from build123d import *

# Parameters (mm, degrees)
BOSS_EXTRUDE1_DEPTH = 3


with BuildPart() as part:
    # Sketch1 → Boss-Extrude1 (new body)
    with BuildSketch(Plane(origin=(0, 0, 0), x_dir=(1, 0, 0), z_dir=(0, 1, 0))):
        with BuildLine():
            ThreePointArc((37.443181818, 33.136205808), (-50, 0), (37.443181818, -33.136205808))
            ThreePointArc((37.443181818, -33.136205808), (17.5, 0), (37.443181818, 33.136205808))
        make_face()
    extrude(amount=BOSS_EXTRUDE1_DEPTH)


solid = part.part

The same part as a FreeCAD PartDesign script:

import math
import FreeCAD as App
import Part
import Sketcher
from FreeCAD import Vector
Q = App.Units.Quantity

doc = App.newDocument("Part")
params = doc.addObject("Spreadsheet::Sheet", "Params")
for row, (alias, value) in enumerate([
    ("sketch1_radius", "50 mm"),
    ("sketch1_radius2", "37.5 mm"),
    ("pad1_length", "3 mm"),
], start=1):
    params.set(f"A{row}", alias)
    params.set(f"B{row}", "=" + value)
    params.setAlias(f"B{row}", alias)

body = doc.addObject("PartDesign::Body", "Body")

# Sketch on XZ plane
sketch1 = doc.addObject("Sketcher::SketchObject", "Sketch")
body.addObject(sketch1)
sketch1.AttachmentSupport = (doc.XZ_Plane, [""])
sketch1.MapMode = "FlatFace"
sketch1.addGeometry(Part.ArcOfCircle(Part.Circle(Vector(0, 0, 0), Vector(0, 0, 1), 50), math.radians(41.507962), math.radians(318.492038)), False)
sketch1.addGeometry(Part.ArcOfCircle(Part.Circle(Vector(55, 0, 0), Vector(0, 0, 1), 37.5), math.radians(117.916339), math.radians(242.083661)), False)
sketch1.addConstraint(Sketcher.Constraint("Coincident", 0, 1, 1, 1))
sketch1.addConstraint(Sketcher.Constraint("Coincident", 1, 2, 0, 2))
sketch1.addConstraint(Sketcher.Constraint("Coincident", 0, 3, -1, 1))
sketch1.addConstraint(Sketcher.Constraint("PointOnObject", 1, 3, -1))
sketch1.addConstraint(Sketcher.Constraint("Radius", 0, Q("50 mm")))
sketch1.addConstraint(Sketcher.Constraint("Radius", 1, Q("37.5 mm")))
sketch1.addConstraint(Sketcher.Constraint("DistanceX", -1, 1, 1, 3, Q("55 mm")))
sketch1.setExpression("Constraints[4]", "Params.sketch1_radius")
sketch1.setExpression("Constraints[5]", "Params.sketch1_radius2")
pad1 = doc.addObject("PartDesign::Pad", "Pad")
body.addObject(pad1)
pad1.Profile = sketch1
pad1.setExpression("Length", "Params.pad1_length")
pad1.Reversed = True

doc.recompute()
